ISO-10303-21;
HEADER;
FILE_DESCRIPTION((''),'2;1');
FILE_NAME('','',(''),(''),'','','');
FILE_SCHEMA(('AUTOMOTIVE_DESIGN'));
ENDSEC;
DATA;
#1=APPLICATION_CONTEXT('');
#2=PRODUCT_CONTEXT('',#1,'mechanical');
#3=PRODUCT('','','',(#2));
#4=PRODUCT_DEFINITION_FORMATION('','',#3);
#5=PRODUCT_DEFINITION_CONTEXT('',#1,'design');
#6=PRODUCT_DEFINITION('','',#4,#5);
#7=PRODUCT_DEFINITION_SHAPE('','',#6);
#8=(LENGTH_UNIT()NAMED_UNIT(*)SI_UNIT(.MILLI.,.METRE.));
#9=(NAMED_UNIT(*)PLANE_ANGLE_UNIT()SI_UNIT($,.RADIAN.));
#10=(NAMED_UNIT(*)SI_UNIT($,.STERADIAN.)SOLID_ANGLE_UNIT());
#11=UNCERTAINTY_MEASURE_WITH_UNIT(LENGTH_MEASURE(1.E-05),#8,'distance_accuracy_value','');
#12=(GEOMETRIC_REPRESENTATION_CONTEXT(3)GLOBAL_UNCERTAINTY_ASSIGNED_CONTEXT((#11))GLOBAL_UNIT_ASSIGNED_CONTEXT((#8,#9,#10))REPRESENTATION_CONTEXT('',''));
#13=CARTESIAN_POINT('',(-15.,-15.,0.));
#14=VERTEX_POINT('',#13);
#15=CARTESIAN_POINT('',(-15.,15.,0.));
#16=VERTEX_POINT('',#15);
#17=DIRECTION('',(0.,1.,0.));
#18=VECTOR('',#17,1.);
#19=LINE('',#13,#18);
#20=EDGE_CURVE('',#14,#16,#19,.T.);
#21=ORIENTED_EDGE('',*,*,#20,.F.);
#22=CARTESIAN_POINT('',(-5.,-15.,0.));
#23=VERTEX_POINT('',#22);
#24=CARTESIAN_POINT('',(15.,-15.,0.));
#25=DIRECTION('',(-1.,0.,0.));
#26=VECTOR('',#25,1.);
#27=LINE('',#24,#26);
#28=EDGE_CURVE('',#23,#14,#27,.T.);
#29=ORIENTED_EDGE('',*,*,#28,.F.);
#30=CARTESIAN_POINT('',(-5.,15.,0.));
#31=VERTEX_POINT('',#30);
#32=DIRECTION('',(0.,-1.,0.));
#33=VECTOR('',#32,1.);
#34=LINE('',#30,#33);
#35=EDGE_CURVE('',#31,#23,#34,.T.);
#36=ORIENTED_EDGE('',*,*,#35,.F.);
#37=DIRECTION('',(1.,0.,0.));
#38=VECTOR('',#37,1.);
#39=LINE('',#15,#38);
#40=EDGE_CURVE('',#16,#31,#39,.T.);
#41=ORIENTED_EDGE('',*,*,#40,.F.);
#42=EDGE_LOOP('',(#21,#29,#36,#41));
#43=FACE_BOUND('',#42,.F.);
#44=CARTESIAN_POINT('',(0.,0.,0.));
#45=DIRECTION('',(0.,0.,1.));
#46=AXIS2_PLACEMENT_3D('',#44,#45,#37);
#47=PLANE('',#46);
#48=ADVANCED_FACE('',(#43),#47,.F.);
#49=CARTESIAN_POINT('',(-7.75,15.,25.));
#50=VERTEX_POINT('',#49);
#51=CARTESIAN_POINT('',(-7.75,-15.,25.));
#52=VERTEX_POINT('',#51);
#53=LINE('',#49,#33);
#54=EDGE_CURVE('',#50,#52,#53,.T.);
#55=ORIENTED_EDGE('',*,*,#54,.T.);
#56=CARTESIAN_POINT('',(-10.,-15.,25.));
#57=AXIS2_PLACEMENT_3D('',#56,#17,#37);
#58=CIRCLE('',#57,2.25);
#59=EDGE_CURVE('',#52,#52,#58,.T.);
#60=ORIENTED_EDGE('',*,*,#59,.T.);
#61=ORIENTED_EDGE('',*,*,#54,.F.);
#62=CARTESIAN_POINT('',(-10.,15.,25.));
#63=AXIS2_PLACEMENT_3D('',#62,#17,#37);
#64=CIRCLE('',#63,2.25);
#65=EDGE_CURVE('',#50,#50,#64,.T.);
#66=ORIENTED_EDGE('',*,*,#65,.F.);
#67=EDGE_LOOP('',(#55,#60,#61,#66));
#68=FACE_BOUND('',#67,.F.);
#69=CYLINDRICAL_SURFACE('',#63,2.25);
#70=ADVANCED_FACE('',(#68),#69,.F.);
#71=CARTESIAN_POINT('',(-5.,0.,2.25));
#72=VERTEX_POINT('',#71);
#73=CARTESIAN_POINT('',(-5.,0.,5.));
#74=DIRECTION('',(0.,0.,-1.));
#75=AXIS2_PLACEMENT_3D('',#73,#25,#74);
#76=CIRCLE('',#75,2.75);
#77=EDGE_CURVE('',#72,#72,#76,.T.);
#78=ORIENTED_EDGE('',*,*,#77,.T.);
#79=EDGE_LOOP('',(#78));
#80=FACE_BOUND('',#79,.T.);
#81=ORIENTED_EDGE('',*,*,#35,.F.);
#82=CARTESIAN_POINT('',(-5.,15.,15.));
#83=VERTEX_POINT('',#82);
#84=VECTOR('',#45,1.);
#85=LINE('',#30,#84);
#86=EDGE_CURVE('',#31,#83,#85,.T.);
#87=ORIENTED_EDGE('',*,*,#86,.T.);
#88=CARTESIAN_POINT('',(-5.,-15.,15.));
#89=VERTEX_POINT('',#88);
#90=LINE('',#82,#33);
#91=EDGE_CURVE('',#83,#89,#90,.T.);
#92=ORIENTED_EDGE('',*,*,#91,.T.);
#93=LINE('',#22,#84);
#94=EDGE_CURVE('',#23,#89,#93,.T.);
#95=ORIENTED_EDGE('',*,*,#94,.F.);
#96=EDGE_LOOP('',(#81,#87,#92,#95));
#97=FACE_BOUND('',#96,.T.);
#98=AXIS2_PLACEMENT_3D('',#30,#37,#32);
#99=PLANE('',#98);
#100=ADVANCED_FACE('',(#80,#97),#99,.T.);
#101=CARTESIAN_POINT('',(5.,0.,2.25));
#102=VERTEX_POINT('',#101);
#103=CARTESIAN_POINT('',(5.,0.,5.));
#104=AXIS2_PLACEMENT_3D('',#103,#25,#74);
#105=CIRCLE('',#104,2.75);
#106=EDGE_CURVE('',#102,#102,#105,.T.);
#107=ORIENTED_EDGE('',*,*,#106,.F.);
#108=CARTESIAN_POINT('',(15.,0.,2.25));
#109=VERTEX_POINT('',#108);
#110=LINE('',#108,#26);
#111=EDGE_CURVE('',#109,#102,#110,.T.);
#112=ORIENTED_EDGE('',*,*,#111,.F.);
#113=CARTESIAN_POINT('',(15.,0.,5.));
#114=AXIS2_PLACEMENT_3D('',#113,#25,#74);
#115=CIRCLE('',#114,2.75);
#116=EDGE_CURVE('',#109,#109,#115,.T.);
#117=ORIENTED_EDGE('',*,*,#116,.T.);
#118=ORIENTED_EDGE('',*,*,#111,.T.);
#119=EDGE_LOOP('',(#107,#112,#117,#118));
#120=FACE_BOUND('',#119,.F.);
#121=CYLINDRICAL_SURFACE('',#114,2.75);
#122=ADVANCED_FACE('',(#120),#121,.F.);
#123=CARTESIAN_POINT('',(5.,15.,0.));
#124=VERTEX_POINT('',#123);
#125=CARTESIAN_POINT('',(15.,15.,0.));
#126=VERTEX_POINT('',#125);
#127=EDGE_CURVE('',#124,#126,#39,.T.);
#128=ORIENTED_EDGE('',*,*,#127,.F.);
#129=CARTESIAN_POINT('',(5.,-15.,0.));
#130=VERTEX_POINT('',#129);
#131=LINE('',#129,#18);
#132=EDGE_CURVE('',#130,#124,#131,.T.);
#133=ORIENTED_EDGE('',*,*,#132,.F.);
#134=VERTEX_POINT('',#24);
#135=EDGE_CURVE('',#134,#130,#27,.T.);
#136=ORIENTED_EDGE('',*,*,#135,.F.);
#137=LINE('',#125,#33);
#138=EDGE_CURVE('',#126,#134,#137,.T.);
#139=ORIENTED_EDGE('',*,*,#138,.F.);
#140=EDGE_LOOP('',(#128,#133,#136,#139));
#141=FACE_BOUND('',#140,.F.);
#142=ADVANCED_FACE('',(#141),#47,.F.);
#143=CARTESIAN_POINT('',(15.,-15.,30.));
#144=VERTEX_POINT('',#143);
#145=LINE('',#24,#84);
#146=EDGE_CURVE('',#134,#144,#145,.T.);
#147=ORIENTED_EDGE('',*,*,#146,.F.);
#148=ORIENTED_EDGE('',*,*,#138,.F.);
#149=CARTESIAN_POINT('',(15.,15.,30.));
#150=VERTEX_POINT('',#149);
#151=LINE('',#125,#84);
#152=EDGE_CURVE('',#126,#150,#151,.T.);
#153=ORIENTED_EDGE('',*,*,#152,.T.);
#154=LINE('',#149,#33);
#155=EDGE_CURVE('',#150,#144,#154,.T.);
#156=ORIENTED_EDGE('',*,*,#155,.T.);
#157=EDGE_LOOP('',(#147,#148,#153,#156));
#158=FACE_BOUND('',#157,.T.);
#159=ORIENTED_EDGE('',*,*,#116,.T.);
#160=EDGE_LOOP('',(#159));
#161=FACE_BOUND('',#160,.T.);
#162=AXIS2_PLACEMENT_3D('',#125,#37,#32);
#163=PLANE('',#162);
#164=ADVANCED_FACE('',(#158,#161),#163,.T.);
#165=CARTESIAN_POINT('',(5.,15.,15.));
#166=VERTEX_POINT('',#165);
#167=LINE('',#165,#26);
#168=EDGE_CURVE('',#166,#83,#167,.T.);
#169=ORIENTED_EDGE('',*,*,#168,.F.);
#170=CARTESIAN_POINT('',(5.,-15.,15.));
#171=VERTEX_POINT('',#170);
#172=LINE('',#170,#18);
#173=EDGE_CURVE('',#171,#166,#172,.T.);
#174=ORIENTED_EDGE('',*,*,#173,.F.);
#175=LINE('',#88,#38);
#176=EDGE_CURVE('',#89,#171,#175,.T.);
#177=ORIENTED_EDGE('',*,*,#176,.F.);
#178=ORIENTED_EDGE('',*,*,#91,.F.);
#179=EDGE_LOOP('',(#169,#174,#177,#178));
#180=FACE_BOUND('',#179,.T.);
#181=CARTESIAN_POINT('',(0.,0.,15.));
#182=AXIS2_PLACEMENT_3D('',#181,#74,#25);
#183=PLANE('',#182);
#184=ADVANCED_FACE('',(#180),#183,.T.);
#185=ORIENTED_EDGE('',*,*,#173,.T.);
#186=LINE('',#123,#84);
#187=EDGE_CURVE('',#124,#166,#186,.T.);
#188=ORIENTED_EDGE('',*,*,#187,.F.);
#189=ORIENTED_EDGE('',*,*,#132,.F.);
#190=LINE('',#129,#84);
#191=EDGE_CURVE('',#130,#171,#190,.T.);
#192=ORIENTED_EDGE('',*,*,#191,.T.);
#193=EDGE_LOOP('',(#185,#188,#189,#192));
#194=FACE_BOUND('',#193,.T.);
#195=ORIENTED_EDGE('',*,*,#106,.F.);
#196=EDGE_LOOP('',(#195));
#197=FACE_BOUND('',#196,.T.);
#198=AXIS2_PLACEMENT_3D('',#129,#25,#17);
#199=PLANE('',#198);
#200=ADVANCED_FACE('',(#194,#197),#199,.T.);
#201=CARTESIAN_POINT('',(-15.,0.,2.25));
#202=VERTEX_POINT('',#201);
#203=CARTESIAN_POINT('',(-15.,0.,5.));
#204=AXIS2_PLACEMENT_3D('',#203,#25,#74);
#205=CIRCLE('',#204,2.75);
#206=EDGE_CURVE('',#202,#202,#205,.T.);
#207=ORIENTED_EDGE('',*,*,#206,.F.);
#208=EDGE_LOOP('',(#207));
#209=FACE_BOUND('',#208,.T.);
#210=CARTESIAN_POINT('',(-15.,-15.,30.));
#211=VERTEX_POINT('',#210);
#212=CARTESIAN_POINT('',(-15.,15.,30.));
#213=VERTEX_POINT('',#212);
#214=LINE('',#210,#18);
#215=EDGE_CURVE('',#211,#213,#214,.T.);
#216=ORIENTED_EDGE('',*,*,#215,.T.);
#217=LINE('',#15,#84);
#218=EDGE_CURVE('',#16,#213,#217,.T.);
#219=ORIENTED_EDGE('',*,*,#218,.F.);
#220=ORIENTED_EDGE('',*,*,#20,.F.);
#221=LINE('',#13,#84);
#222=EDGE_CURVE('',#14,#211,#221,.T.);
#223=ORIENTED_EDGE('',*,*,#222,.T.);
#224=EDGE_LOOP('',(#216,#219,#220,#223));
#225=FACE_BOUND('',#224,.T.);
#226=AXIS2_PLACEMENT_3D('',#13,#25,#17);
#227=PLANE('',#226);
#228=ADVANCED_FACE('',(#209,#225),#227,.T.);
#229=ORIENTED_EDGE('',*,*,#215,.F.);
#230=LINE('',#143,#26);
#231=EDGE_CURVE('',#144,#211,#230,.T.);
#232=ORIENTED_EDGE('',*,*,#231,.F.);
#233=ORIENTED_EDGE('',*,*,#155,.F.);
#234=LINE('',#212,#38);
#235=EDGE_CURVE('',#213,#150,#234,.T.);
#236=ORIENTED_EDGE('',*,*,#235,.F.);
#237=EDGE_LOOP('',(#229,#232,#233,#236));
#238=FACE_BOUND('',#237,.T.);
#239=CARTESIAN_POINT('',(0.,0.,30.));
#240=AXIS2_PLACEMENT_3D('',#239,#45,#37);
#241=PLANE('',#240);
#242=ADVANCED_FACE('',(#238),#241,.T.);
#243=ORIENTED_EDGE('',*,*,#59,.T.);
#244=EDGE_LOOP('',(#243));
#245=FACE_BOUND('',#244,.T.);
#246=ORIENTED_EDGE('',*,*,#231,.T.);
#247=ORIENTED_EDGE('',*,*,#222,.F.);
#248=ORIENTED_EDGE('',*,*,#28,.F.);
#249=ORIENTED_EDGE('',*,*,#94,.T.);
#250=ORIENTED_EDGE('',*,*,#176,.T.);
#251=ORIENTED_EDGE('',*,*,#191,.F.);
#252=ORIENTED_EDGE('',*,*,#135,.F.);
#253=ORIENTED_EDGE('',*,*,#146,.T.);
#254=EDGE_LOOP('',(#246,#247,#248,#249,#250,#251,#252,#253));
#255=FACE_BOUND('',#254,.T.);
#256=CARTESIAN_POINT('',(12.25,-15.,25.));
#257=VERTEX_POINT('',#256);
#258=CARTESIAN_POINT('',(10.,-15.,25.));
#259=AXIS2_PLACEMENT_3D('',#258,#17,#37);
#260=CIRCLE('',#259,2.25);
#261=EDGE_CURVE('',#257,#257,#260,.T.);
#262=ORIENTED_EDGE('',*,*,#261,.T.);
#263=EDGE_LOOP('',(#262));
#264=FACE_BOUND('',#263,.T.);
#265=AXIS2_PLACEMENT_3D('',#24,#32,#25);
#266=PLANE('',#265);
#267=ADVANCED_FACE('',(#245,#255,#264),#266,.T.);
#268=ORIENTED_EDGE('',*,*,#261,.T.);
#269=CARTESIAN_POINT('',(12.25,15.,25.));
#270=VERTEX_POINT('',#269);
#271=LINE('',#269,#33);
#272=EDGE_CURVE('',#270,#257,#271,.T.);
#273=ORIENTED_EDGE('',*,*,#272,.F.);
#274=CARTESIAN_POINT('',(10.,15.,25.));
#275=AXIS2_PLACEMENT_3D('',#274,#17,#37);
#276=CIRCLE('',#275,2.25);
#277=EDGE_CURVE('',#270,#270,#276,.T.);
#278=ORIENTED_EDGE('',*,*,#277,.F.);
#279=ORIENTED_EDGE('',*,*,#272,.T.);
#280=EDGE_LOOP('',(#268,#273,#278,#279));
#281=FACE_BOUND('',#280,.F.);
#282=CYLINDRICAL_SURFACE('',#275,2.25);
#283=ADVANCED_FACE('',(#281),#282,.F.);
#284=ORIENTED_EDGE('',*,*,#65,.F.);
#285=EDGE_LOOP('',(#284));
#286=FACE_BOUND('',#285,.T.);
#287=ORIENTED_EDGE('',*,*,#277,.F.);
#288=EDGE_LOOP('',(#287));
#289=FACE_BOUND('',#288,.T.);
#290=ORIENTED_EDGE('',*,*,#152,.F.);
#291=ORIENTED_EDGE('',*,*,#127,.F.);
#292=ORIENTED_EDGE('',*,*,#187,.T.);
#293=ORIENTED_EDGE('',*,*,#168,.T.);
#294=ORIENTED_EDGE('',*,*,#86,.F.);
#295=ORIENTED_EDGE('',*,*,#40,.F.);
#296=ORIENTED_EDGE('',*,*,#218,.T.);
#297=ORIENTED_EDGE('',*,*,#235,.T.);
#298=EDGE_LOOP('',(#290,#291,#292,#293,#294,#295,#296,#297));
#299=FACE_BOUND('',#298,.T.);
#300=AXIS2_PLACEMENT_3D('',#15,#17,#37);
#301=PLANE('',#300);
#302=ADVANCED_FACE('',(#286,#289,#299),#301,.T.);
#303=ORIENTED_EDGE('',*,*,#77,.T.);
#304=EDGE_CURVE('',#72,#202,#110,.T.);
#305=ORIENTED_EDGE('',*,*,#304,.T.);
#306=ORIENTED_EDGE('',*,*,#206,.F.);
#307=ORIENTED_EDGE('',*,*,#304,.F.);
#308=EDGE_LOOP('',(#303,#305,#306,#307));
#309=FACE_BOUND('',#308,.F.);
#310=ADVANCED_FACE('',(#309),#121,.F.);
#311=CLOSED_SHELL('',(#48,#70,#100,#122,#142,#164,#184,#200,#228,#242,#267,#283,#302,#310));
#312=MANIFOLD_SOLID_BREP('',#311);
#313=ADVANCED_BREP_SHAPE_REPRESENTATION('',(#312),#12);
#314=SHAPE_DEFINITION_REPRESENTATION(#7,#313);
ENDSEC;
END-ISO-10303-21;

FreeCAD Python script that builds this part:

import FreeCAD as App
import Part
import Sketcher

V = App.Vector


def add_polygon(sketch, points):
    """Adds a closed chain of lines whose ends are joined by coincident constraints."""
    first, n = sketch.GeometryCount, len(points)
    for a, b in zip(points, points[1:] + points[:1]):
        sketch.addGeometry(Part.LineSegment(App.Vector(*a, 0), App.Vector(*b, 0)), False)
    for i in range(n):
        sketch.addConstraint(Sketcher.Constraint("Coincident", first + i, 2, first + (i + 1) % n, 1))

doc = App.newDocument("Part")
body = doc.addObject("PartDesign::Body", "Body")

sketch1 = body.newObject("Sketcher::SketchObject", "Sketch")
sketch1.AttachmentSupport = (doc.getObject("XY_Plane"), [""])
sketch1.MapMode = "FlatFace"
add_polygon(sketch1, [(15, 15), (-15, 15), (-15, -15), (15, -15)])
sketch1.addConstraint(Sketcher.Constraint("Horizontal", 0))
sketch1.addConstraint(Sketcher.Constraint("Vertical", 1))
sketch1.addConstraint(Sketcher.Constraint("Horizontal", 2))
sketch1.addConstraint(Sketcher.Constraint("Vertical", 3))
sketch1.addConstraint(Sketcher.Constraint("Symmetric", 0, 2, 2, 2, -1, 1))
sketch1.addConstraint(Sketcher.Constraint("Equal", 2, 1))
sketch1.addConstraint(Sketcher.Constraint("DistanceX", 0, 2, 0, 1, 30.0))
pad1 = body.newObject("PartDesign::Pad", "Pad")
pad1.Profile = sketch1
pad1.Length = 30

sketch2 = body.newObject("Sketcher::SketchObject", "Sketch001")
sketch2.AttachmentSupport = (doc.getObject("XY_Plane"), [""])
sketch2.MapMode = "FlatFace"
add_polygon(sketch2, [(5, -15), (-5, -15), (-5, 15), (5, 15)])
sketch2.addConstraint(Sketcher.Constraint("Horizontal", 0))
sketch2.addConstraint(Sketcher.Constraint("Vertical", 1))
sketch2.addConstraint(Sketcher.Constraint("Horizontal", 2))
sketch2.addConstraint(Sketcher.Constraint("Vertical", 3))
sketch2.addConstraint(Sketcher.Constraint("Symmetric", 0, 2, 2, 2, -1, 1))
sketch2.addConstraint(Sketcher.Constraint("DistanceX", 0, 2, 0, 1, 10.0))
sketch2.addConstraint(Sketcher.Constraint("DistanceY", 1, 1, 1, 2, 30.0))
pocket1 = body.newObject("PartDesign::Pocket", "Pocket")
pocket1.Profile = sketch2
pocket1.Length = 15
pocket1.Reversed = True

sketch3 = body.newObject("Sketcher::SketchObject", "Sketch002")
sketch3.AttachmentSupport = (doc.getObject("YZ_Plane"), [""])
sketch3.MapMode = "FlatFace"
sketch3.AttachmentOffset = App.Placement(V(0, 0, 15), App.Rotation())
sketch3.addGeometry(Part.Circle(V(0, 5, 0), V(0, 0, 1), 2.8), False)
sketch3.addConstraint(Sketcher.Constraint("PointOnObject", 0, 3, -2))
sketch3.addConstraint(Sketcher.Constraint("Diameter", 0, 5.5))
sketch3.addConstraint(Sketcher.Constraint("DistanceY", -1, 1, 0, 3, 5.0))
doc.recompute()
hole = body.newObject("PartDesign::Hole", "Hole")
hole.Profile = sketch3
hole.ThreadType = "None"
hole.Diameter = 5.5
hole.DepthType = "ThroughAll"

sketch4 = body.newObject("Sketcher::SketchObject", "Sketch003")
sketch4.AttachmentSupport = (doc.getObject("XZ_Plane"), [""])
sketch4.MapMode = "FlatFace"
sketch4.AttachmentOffset = App.Placement(V(0, 0, -15), App.Rotation())
sketch4.addGeometry(Part.Circle(V(-10, 25, 0), V(0, 0, 1), 2.2), False)
sketch4.addGeometry(Part.Circle(V(10, 25, 0), V(0, 0, 1), 2.2), False)
sketch4.addConstraint(Sketcher.Constraint("Equal", 0, 1))
sketch4.addConstraint(Sketcher.Constraint("Symmetric", 0, 3, 1, 3, -2))
sketch4.addConstraint(Sketcher.Constraint("Diameter", 0, 4.5))
sketch4.addConstraint(Sketcher.Constraint("DistanceX", 0, 3, -1, 1, 10.0))
sketch4.addConstraint(Sketcher.Constraint("DistanceY", -1, 1, 0, 3, 25.0))
pocket2 = body.newObject("PartDesign::Pocket", "Pocket001")
pocket2.Profile = sketch4
pocket2.Type = "ThroughAll"
pocket2.Reversed = True

doc.recompute()
